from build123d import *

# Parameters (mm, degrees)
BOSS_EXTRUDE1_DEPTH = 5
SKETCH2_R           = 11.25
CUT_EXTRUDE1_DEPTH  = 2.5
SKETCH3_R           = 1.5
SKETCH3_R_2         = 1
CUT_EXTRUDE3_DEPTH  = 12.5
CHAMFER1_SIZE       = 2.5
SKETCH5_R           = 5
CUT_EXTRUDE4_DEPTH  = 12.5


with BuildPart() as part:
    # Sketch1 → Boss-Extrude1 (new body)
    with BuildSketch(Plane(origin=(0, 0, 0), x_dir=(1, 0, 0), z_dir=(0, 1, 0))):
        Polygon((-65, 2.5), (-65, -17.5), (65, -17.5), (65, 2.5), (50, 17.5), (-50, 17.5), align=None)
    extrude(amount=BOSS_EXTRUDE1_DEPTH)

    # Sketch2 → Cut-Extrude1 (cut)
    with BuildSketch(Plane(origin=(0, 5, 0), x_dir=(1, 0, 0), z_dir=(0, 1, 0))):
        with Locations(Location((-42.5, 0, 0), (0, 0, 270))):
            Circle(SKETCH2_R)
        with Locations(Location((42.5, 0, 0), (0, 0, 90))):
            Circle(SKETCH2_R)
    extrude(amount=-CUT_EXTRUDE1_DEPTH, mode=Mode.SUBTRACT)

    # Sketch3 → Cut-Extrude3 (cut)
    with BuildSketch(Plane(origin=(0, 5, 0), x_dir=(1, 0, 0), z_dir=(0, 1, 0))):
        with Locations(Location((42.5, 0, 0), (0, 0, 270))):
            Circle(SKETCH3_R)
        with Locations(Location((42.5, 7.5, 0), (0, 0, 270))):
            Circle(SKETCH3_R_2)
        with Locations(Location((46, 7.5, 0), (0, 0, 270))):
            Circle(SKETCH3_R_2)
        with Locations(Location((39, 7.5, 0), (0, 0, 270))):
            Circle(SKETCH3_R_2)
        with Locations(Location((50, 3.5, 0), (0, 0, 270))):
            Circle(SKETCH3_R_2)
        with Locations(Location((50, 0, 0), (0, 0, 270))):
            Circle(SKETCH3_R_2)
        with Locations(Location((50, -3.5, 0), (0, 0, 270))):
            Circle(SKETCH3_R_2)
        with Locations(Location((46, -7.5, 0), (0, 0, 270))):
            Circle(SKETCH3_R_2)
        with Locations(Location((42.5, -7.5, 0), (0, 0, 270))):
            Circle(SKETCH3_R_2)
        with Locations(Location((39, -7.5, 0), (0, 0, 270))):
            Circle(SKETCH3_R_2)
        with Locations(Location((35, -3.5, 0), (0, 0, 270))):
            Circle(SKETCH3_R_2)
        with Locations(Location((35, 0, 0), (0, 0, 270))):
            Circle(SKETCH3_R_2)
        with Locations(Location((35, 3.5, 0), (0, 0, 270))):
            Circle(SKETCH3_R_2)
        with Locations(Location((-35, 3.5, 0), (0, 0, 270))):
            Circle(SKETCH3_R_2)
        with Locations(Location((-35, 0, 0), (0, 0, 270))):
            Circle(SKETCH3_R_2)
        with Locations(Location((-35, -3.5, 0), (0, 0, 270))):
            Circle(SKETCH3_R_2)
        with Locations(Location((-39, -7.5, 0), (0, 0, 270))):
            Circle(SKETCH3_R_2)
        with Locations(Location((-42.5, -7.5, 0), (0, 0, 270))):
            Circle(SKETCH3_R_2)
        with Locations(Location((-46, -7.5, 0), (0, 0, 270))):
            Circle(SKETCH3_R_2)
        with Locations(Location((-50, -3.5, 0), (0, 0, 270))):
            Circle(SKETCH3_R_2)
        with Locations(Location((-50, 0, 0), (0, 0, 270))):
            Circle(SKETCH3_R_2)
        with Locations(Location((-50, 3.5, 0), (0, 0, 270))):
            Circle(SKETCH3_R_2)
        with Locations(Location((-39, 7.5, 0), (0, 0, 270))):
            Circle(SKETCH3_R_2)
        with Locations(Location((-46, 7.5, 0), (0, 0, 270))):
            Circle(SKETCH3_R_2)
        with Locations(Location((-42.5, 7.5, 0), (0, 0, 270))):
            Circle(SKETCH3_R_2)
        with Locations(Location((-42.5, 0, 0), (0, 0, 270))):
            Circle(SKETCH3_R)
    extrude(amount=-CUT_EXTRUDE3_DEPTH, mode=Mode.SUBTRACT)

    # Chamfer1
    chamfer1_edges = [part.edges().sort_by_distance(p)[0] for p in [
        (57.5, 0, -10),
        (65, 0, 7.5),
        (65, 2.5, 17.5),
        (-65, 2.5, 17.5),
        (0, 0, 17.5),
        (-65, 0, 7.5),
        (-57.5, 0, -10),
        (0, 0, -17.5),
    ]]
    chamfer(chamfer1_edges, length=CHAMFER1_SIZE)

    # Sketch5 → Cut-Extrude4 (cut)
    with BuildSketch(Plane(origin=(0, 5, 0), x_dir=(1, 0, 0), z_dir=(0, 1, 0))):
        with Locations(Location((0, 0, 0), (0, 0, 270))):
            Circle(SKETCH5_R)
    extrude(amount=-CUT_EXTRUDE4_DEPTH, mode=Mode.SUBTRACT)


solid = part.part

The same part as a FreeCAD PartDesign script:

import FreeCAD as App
import Part
import Sketcher


def edges_at(feature, points):
    """Names of the edges that pass closest to the given points."""
    edges = feature.Shape.Edges
    near = lambda p: min(range(len(edges)), key=lambda i: edges[i].distToShape(Part.Vertex(*p))[0])
    return sorted({f"Edge{near(p) + 1}" for p in points})

doc = App.newDocument("Part")
params = doc.addObject("Spreadsheet::Sheet", "Params")
for row, (alias, value) in enumerate([
    ("sketch1_width", "130 mm"),
    ("sketch1_width2", "100 mm"),
    ("sketch1_height", "20 mm"),
    ("pad1_length", "5 mm"),
    ("sketch2_diameter", "22.5 mm"),
    ("pocket1_length", "2.5 mm"),
    ("sketch3_diameter", "3 mm"),
    ("sketch3_diameter2", "2 mm"),
    ("pocket2_length", "12.5 mm"),
    ("chamfer_size", "2.5 mm"),
    ("sketch4_diameter", "10 mm"),
    ("pocket3_length", "12.5 mm"),
], start=1):
    params.set(f"A{row}", alias)
    params.set(f"B{row}", "=" + value)
    params.setAlias(f"B{row}", alias)

body = doc.addObject("PartDesign::Body", "Body")

# Sketch on XZ plane
sketch1 = body.newObject("Sketcher::SketchObject", "Sketch")
sketch1.AttachmentSupport = (doc.getObject("XZ_Plane"), [""])
sketch1.MapMode = "FlatFace"
sketch1.addGeometry([
    Part.LineSegment(App.Vector(-65, -2, 0), App.Vector(-65, 18, 0)),  # 0
    Part.LineSegment(App.Vector(-65, 18, 0), App.Vector(65, 18, 0)),  # 1
    Part.LineSegment(App.Vector(65, 18, 0), App.Vector(65, -2, 0)),  # 2
    Part.LineSegment(App.Vector(65, -2, 0), App.Vector(50, -18, 0)),  # 3
    Part.LineSegment(App.Vector(50, -18, 0), App.Vector(-50, -18, 0)),  # 4
    Part.LineSegment(App.Vector(-50, -18, 0), App.Vector(-65, -2, 0)),  # 5
], False)
sketch1.addConstraint([
    Sketcher.Constraint("Coincident", 0, 2, 1, 1),
    Sketcher.Constraint("Coincident", 1, 2, 2, 1),
    Sketcher.Constraint("Coincident", 2, 2, 3, 1),
    Sketcher.Constraint("Coincident", 3, 2, 4, 1),
    Sketcher.Constraint("Coincident", 4, 2, 5, 1),
    Sketcher.Constraint("Coincident", 5, 2, 0, 1),
    Sketcher.Constraint("Vertical", 0),
    Sketcher.Constraint("Horizontal", 1),
    Sketcher.Constraint("Vertical", 2),
    Sketcher.Constraint("Horizontal", 4),
    Sketcher.Constraint("Symmetric", 2, 2, 5, 2, -2),
    Sketcher.Constraint("Perpendicular", 3, 5),
    Sketcher.Constraint("Equal", 3, 5),
    Sketcher.Constraint("DistanceX", 1, 1, 1, 2, 130.0),
    Sketcher.Constraint("DistanceX", 4, 2, 4, 1, 100.0),
    Sketcher.Constraint("DistanceY", 0, 1, 0, 2, 20.0),
    Sketcher.Constraint("DistanceY", -1, 1, 0, 2, 17.5),
])
sketch1.setExpression("Constraints[13]", "Params.sketch1_width")
sketch1.setExpression("Constraints[14]", "Params.sketch1_width2")
sketch1.setExpression("Constraints[15]", "Params.sketch1_height")
pad1 = body.newObject("PartDesign::Pad", "Pad")
pad1.Profile = sketch1
pad1.setExpression("Length", "Params.pad1_length")
pad1.Reversed = True

# Sketch on XZ plane
sketch2 = body.newObject("Sketcher::SketchObject", "Sketch001")
sketch2.AttachmentSupport = (doc.getObject("XZ_Plane"), [""])
sketch2.MapMode = "FlatFace"
sketch2.AttachmentOffset = App.Placement(App.Vector(0, 0, -5), App.Rotation())
sketch2.addGeometry([
    Part.Circle(App.Vector(-42, 0, 0), App.Vector(0, 0, 1), 11),
    Part.Circle(App.Vector(42, 0, 0), App.Vector(0, 0, 1), 11),
], False)
sketch2.addConstraint([
    Sketcher.Constraint("Equal", 0, 1),
    Sketcher.Constraint("Symmetric", 0, 3, 1, 3, -1, 1),
    Sketcher.Constraint("PointOnObject", 0, 3, -1),
    Sketcher.Constraint("Diameter", 0, 22.5),
    Sketcher.Constraint("DistanceX", 0, 3, 1, 3, 85.0),
])
sketch2.setExpression("Constraints[3]", "Params.sketch2_diameter")
pocket1 = body.newObject("PartDesign::Pocket", "Pocket")
pocket1.Profile = sketch2
pocket1.setExpression("Length", "Params.pocket1_length")
pocket1.Reversed = True

# Sketch on XZ plane
sketch3 = body.newObject("Sketcher::SketchObject", "Sketch002")
sketch3.AttachmentSupport = (doc.getObject("XZ_Plane"), [""])
sketch3.MapMode = "FlatFace"
sketch3.AttachmentOffset = App.Placement(App.Vector(0, 0, -5), App.Rotation())
sketch3.addGeometry([
    Part.Circle(App.Vector(42.5, 0, 0), App.Vector(0, 0, 1), 1.5),  # 0
    Part.Circle(App.Vector(42.5, -7.5, 0), App.Vector(0, 0, 1), 1),  # 1
    Part.Circle(App.Vector(46, -7.5, 0), App.Vector(0, 0, 1), 1),  # 2
    Part.Circle(App.Vector(39, -7.5, 0), App.Vector(0, 0, 1), 1),  # 3
    Part.Circle(App.Vector(50, -3.5, 0), App.Vector(0, 0, 1), 1),  # 4
    Part.Circle(App.Vector(50, 0, 0), App.Vector(0, 0, 1), 1),  # 5
    Part.Circle(App.Vector(50, 3.5, 0), App.Vector(0, 0, 1), 1),  # 6
    Part.Circle(App.Vector(46, 7.5, 0), App.Vector(0, 0, 1), 1),  # 7
    Part.Circle(App.Vector(42.5, 7.5, 0), App.Vector(0, 0, 1), 1),  # 8
    Part.Circle(App.Vector(39, 7.5, 0), App.Vector(0, 0, 1), 1),  # 9
    Part.Circle(App.Vector(35, 3.5, 0), App.Vector(0, 0, 1), 1),  # 10
    Part.Circle(App.Vector(35, 0, 0), App.Vector(0, 0, 1), 1),  # 11
    Part.Circle(App.Vector(35, -3.5, 0), App.Vector(0, 0, 1), 1),  # 12
    Part.Circle(App.Vector(-35, -3.5, 0), App.Vector(0, 0, 1), 1),  # 13
    Part.Circle(App.Vector(-35, 0, 0), App.Vector(0, 0, 1), 1),  # 14
    Part.Circle(App.Vector(-35, 3.5, 0), App.Vector(0, 0, 1), 1),  # 15
    Part.Circle(App.Vector(-39, 7.5, 0), App.Vector(0, 0, 1), 1),  # 16
    Part.Circle(App.Vector(-42.5, 7.5, 0), App.Vector(0, 0, 1), 1),  # 17
    Part.Circle(App.Vector(-46, 7.5, 0), App.Vector(0, 0, 1), 1),  # 18
    Part.Circle(App.Vector(-50, 3.5, 0), App.Vector(0, 0, 1), 1),  # 19
    Part.Circle(App.Vector(-50, 0, 0), App.Vector(0, 0, 1), 1),  # 20
    Part.Circle(App.Vector(-50, -3.5, 0), App.Vector(0, 0, 1), 1),  # 21
    Part.Circle(App.Vector(-39, -7.5, 0), App.Vector(0, 0, 1), 1),  # 22
    Part.Circle(App.Vector(-46, -7.5, 0), App.Vector(0, 0, 1), 1),  # 23
    Part.Circle(App.Vector(-42.5, -7.5, 0), App.Vector(0, 0, 1), 1),  # 24
    Part.Circle(App.Vector(-42.5, 0, 0), App.Vector(0, 0, 1), 1.5),  # 25
], False)
sketch3.addConstraint([
    Sketcher.Constraint("Equal", 1, 2),
    Sketcher.Constraint("Equal", 2, 3),
    Sketcher.Constraint("Equal", 3, 4),
    Sketcher.Constraint("Equal", 4, 5),
    Sketcher.Constraint("Equal", 5, 6),
    Sketcher.Constraint("Equal", 6, 7),
    Sketcher.Constraint("Equal", 7, 8),
    Sketcher.Constraint("Equal", 8, 9),
    Sketcher.Constraint("Equal", 9, 10),
    Sketcher.Constraint("Equal", 10, 11),
    Sketcher.Constraint("Equal", 11, 12),
    Sketcher.Constraint("Equal", 12, 13),
    Sketcher.Constraint("Equal", 13, 14),
    Sketcher.Constraint("Equal", 14, 15),
    Sketcher.Constraint("Equal", 15, 16),
    Sketcher.Constraint("Equal", 16, 17),
    Sketcher.Constraint("Equal", 17, 18),
    Sketcher.Constraint("Equal", 18, 19),
    Sketcher.Constraint("Equal", 19, 20),
    Sketcher.Constraint("Equal", 20, 21),
    Sketcher.Constraint("Equal", 21, 22),
    Sketcher.Constraint("Equal", 22, 23),
    Sketcher.Constraint("Equal", 23, 24),
    Sketcher.Constraint("Equal", 0, 25),
    Sketcher.Constraint("Symmetric", 10, 3, 13, 3, -1, 1),
    Sketcher.Constraint("Symmetric", 11, 3, 14, 3, -1, 1),
    Sketcher.Constraint("Symmetric", 12, 3, 15, 3, -1, 1),
    Sketcher.Constraint("Symmetric", 3, 3, 16, 3, -1, 1),
    Sketcher.Constraint("Symmetric", 1, 3, 17, 3, -1, 1),
    Sketcher.Constraint("Symmetric", 2, 3, 18, 3, -1, 1),
    Sketcher.Constraint("Symmetric", 4, 3, 19, 3, -1, 1),
    Sketcher.Constraint("Symmetric", 5, 3, 20, 3, -1, 1),
    Sketcher.Constraint("Symmetric", 6, 3, 21, 3, -1, 1),
    Sketcher.Constraint("Symmetric", 9, 3, 22, 3, -1, 1),
    Sketcher.Constraint("Symmetric", 7, 3, 23, 3, -1, 1),
    Sketcher.Constraint("Symmetric", 8, 3, 24, 3, -1, 1),
    Sketcher.Constraint("Symmetric", 0, 3, 25, 3, -1, 1),
    Sketcher.Constraint("Symmetric", 12, 3, 13, 3, -2),
    Sketcher.Constraint("Symmetric", 9, 3, 16, 3, -2),
    Sketcher.Constraint("Symmetric", 8, 3, 17, 3, -2),
    Sketcher.Constraint("Symmetric", 7, 3, 18, 3, -2),
    Sketcher.Constraint("Symmetric", 6, 3, 19, 3, -2),
    Sketcher.Constraint("PointOnObject", 0, 3, -1),
    Sketcher.Constraint("PointOnObject", 5, 3, -1),
    Sketcher.Constraint("PointOnObject", 11, 3, -1),
    Sketcher.Constraint("Horizontal", 1, 3, 2, 3),
    Sketcher.Constraint("Horizontal", 2, 3, 3, 3),
    Sketcher.Constraint("Horizontal", 6, 3, 10, 3),
    Sketcher.Constraint("Vertical", 0, 3, 1, 3),
    Sketcher.Constraint("Vertical", 4, 3, 5, 3),
    Sketcher.Constraint("Vertical", 10, 3, 11, 3),
    Sketcher.Constraint("Diameter", 0, 3.0),
    Sketcher.Constraint("Diameter", 1, 2.0),
    Sketcher.Constraint("DistanceX", -1, 1, 2, 3, 46.0),
    Sketcher.Constraint("DistanceX", -1, 1, 3, 3, 39.0),
    Sketcher.Constraint("DistanceX", -1, 1, 4, 3, 50.0),
    Sketcher.Constraint("DistanceX", -1, 1, 10, 3, 35.0),
    Sketcher.Constraint("DistanceY", 2, 3, 4, 3, 4.0),
    Sketcher.Constraint("DistanceY", 4, 3, 6, 3, 7.0),
    Sketcher.Constraint("DistanceX", -1, 1, 0, 3, 42.5),
])
sketch3.setExpression("Constraints[51]", "Params.sketch3_diameter")
sketch3.setExpression("Constraints[52]", "Params.sketch3_diameter2")
pocket2 = body.newObject("PartDesign::Pocket", "Pocket001")
pocket2.Profile = sketch3
pocket2.setExpression("Length", "Params.pocket2_length")
pocket2.Reversed = True
doc.recompute()

chamfer = body.newObject("PartDesign::Chamfer", "Chamfer")
chamfer.Base = (pocket2, edges_at(pocket2, [
    (57.5, 0, -10),
    (65, 0, 7.5),
    (65, 2.5, 17.5),
    (-65, 2.5, 17.5),
    (0, 0, 17.5),
    (-65, 0, 7.5),
    (-57.5, 0, -10),
    (0, 0, -17.5),
]))
chamfer.setExpression("Size", "Params.chamfer_size")

# Sketch on XZ plane
sketch4 = body.newObject("Sketcher::SketchObject", "Sketch003")
sketch4.AttachmentSupport = (doc.getObject("XZ_Plane"), [""])
sketch4.MapMode = "FlatFace"
sketch4.AttachmentOffset = App.Placement(App.Vector(0, 0, -5), App.Rotation())
sketch4.addGeometry(Part.Circle(App.Vector(0, 0, 0), App.Vector(0, 0, 1), 5), False)
sketch4.addConstraint([
    Sketcher.Constraint("Coincident", 0, 3, -1, 1),
    Sketcher.Constraint("Diameter", 0, 10.0),
])
sketch4.setExpression("Constraints[1]", "Params.sketch4_diameter")
pocket3 = body.newObject("PartDesign::Pocket", "Pocket002")
pocket3.Profile = sketch4
pocket3.setExpression("Length", "Params.pocket3_length")
pocket3.Reversed = True

doc.recompute()
